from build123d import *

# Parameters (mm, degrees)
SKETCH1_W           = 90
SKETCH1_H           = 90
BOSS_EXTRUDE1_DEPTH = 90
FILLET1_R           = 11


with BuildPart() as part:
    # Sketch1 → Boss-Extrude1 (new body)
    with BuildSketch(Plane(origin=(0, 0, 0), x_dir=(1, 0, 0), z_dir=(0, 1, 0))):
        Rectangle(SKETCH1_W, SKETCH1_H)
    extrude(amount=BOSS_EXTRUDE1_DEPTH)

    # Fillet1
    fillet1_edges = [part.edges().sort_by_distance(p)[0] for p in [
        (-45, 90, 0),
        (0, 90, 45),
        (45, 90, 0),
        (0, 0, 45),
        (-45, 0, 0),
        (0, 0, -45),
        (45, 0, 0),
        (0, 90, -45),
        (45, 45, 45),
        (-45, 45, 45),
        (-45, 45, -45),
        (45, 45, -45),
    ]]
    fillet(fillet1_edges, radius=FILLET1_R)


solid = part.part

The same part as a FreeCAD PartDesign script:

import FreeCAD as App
import Part
import Sketcher
from FreeCAD import Vector
Q = App.Units.Quantity

doc = App.newDocument("Part")
body = doc.addObject("PartDesign::Body", "Body")

sketch1 = body.newObject("Sketcher::SketchObject", "Sketch")
sketch1.AttachmentSupport = (doc.getObject("XZ_Plane"), [""])
sketch1.MapMode = "FlatFace"
sketch1.addGeometry([
    Part.LineSegment(Vector(-45, -45, 0), Vector(-45, 45, 0)),
    Part.LineSegment(Vector(-45, 45, 0), Vector(45, 45, 0)),
    Part.LineSegment(Vector(45, 45, 0), Vector(45, -45, 0)),
    Part.LineSegment(Vector(45, -45, 0), Vector(-45, -45, 0)),
], False)
sketch1.addConstraint([
    Sketcher.Constraint("Coincident", 0, 2, 1, 1),
    Sketcher.Constraint("Coincident", 1, 2, 2, 1),
    Sketcher.Constraint("Coincident", 2, 2, 3, 1),
    Sketcher.Constraint("Coincident", 3, 2, 0, 1),
    Sketcher.Constraint("Vertical", 0),
    Sketcher.Constraint("Horizontal", 1),
    Sketcher.Constraint("Vertical", 2),
    Sketcher.Constraint("Horizontal", 3),
    Sketcher.Constraint("Symmetric", 0, 2, 2, 2, -1, 1),
    Sketcher.Constraint("Equal", 3, 0),
    Sketcher.Constraint("DistanceX", 1, 1, 1, 2, Q("90 mm")),
])
pad1 = body.newObject("PartDesign::Pad", "Pad")
pad1.Profile = sketch1
pad1.Length = 90
pad1.Reversed = True
doc.recompute()

fillet = body.newObject("PartDesign::Fillet", "Fillet")
fillet.Base = (pad1, ["Edge1"])
fillet.UseAllEdges = True
fillet.Radius = 11

doc.recompute()
